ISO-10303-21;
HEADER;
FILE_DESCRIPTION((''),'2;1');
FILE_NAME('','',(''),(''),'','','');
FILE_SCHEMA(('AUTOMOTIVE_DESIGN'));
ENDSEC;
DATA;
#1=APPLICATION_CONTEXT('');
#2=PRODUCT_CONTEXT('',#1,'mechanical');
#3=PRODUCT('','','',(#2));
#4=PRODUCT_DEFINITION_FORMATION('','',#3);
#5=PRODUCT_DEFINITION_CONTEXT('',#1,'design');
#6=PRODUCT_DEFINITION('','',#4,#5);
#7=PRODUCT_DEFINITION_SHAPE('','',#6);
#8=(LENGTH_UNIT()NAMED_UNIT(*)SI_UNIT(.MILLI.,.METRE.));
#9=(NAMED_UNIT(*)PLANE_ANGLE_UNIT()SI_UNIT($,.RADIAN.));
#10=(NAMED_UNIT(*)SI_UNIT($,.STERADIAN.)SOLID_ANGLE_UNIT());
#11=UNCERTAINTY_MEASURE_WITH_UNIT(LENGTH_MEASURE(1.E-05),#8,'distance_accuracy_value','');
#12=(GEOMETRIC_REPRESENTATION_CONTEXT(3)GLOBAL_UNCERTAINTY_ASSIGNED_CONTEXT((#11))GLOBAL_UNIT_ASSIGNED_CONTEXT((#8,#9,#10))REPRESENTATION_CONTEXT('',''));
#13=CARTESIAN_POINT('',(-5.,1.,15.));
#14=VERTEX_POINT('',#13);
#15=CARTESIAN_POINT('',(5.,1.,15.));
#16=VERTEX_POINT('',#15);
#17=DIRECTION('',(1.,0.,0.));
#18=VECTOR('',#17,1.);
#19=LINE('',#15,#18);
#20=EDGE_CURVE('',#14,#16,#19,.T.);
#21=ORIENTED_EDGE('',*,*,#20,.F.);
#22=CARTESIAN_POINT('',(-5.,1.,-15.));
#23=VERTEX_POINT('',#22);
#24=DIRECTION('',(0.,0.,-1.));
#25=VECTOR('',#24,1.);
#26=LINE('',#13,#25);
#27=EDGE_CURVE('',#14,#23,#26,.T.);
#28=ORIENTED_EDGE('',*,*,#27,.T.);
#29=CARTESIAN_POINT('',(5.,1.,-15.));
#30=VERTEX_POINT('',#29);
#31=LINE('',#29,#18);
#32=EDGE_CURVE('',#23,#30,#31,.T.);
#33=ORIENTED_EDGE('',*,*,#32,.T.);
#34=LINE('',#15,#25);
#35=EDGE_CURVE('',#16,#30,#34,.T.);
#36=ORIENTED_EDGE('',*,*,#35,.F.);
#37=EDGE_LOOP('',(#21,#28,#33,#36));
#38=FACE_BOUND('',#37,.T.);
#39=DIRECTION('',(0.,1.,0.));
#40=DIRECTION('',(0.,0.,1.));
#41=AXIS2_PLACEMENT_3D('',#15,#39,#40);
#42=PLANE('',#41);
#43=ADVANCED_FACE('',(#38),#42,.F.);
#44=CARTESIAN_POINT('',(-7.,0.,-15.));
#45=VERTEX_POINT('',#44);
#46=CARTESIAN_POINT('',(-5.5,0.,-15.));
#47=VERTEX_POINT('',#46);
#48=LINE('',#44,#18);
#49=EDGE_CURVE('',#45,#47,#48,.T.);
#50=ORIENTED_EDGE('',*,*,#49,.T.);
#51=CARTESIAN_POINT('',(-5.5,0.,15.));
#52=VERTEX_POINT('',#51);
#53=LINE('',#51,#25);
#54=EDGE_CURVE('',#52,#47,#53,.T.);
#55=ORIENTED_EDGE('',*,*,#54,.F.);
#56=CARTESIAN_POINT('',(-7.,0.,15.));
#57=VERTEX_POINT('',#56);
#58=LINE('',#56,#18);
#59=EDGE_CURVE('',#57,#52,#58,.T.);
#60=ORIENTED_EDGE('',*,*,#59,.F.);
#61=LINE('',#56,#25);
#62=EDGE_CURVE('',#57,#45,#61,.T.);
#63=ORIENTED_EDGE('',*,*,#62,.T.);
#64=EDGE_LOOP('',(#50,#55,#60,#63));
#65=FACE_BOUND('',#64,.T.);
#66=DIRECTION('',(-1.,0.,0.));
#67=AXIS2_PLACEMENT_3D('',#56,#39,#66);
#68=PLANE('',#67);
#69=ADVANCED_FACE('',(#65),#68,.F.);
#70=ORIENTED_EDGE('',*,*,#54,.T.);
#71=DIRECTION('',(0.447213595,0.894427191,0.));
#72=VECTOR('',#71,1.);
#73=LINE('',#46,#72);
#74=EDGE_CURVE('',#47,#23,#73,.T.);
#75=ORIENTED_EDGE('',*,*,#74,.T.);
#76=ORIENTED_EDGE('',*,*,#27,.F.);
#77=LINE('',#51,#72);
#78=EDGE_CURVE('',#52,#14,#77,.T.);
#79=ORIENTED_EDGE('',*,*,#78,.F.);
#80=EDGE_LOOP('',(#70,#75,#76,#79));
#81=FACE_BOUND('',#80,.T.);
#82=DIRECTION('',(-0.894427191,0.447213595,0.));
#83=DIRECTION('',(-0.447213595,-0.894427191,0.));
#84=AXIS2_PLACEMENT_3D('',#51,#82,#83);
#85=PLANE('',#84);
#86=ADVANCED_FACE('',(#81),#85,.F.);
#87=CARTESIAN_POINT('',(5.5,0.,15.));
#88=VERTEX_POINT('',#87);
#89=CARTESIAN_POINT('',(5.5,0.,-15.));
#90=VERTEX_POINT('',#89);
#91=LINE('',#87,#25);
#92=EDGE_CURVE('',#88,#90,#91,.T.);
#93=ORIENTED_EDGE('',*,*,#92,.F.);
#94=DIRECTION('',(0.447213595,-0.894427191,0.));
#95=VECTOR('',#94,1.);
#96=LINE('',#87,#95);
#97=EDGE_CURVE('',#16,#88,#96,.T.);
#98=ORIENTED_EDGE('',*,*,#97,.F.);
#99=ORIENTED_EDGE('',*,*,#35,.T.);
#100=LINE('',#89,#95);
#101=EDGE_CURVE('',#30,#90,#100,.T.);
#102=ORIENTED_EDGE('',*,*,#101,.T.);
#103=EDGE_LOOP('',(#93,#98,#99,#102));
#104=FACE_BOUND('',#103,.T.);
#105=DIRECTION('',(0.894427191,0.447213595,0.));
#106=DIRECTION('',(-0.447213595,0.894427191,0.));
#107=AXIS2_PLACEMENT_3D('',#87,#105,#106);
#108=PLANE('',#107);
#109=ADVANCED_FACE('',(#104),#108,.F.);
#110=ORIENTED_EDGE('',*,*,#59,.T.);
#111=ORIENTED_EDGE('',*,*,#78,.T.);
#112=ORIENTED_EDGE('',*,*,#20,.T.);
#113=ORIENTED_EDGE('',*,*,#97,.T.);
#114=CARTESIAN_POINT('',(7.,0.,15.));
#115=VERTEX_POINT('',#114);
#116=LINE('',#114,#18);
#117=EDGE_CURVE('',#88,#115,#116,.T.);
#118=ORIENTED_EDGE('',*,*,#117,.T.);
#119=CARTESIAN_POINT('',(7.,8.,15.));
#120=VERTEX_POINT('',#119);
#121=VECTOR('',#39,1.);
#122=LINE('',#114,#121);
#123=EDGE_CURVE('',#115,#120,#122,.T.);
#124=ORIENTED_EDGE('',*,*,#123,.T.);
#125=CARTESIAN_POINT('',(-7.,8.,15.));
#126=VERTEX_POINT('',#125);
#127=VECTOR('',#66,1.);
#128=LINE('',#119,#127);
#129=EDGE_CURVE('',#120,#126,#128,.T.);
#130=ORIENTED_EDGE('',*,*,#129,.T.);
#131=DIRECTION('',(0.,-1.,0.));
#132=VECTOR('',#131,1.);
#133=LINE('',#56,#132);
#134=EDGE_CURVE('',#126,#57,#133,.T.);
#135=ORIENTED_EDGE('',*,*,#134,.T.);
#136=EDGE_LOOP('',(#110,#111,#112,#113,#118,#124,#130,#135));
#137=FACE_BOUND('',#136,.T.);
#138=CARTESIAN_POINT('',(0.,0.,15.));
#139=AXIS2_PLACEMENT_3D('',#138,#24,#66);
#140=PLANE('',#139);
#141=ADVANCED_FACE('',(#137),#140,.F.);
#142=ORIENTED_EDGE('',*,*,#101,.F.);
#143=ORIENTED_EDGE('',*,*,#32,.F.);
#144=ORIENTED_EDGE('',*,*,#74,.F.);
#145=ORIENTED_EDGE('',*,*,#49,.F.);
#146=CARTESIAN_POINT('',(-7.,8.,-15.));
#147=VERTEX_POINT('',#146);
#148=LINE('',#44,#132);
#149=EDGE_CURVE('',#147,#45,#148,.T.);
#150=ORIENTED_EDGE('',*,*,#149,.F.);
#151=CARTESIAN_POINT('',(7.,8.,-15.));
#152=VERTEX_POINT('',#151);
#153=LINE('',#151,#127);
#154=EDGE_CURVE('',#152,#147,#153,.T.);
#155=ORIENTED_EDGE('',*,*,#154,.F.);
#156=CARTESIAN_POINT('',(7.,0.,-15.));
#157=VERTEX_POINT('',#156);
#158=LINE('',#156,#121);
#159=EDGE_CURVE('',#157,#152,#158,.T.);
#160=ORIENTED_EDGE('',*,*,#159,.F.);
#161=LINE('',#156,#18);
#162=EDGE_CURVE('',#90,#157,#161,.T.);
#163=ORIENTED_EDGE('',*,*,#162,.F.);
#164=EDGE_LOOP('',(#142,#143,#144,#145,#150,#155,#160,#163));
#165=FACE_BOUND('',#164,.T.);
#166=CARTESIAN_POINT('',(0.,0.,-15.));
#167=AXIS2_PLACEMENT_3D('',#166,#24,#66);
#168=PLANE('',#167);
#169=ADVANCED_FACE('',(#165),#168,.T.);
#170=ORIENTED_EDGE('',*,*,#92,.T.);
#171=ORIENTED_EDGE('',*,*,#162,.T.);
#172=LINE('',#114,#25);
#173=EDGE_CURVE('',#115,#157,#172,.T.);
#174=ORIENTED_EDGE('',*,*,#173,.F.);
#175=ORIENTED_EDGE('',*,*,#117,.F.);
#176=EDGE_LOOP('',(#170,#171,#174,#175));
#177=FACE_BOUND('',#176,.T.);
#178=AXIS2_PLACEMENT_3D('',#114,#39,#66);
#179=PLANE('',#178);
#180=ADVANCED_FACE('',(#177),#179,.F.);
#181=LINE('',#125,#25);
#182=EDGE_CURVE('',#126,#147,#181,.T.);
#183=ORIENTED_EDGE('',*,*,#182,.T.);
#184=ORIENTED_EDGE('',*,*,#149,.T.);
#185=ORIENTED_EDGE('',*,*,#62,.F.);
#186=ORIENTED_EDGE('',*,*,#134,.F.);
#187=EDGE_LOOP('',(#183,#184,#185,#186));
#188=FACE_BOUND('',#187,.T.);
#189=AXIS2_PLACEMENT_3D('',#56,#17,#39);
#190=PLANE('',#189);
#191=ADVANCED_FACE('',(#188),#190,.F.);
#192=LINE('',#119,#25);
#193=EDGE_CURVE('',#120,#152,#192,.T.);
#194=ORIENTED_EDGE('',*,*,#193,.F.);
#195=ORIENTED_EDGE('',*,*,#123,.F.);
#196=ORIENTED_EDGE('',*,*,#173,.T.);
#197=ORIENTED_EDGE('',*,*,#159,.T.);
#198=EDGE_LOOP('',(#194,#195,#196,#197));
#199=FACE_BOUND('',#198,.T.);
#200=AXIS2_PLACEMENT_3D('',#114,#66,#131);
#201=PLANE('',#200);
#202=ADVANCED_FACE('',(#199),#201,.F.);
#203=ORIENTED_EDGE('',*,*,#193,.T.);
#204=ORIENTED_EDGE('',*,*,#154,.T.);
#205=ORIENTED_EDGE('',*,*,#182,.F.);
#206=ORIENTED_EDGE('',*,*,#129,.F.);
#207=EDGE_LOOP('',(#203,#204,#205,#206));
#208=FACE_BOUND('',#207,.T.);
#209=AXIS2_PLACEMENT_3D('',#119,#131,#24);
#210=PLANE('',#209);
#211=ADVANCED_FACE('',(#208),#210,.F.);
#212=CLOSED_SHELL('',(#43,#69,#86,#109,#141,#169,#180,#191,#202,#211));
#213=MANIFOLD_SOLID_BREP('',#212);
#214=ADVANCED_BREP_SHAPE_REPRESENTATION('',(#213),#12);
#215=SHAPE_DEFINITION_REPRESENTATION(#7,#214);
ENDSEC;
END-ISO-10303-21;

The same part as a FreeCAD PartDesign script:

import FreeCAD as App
import Part
import Sketcher
from FreeCAD import Vector
Q = App.Units.Quantity


def add_polygon(sketch, points):
    """Adds a closed chain of lines whose ends are joined by coincident constraints."""
    first, n = sketch.GeometryCount, len(points)
    for a, b in zip(points, points[1:] + points[:1]):
        sketch.addGeometry(Part.LineSegment(App.Vector(*a, 0), App.Vector(*b, 0)), False)
    for i in range(n):
        sketch.addConstraint(Sketcher.Constraint("Coincident", first + i, 2, first + (i + 1) % n, 1))

doc = App.newDocument("Part")
params = doc.addObject("Spreadsheet::Sheet", "Params")
for row, (alias, value) in enumerate([
    ("sketch1_width", "14 mm"),
    ("sketch1_width2", "10 mm"),
    ("sketch1_height", "8 mm"),
    ("sketch1_width3", "1.5 mm"),
    ("pad1_length", "30 mm"),
], start=1):
    params.set(f"A{row}", alias)
    params.set(f"B{row}", "=" + value)
    params.setAlias(f"B{row}", alias)

body = doc.addObject("PartDesign::Body", "Body")

# Sketch on XY plane
sketch1 = doc.addObject("Sketcher::SketchObject", "Sketch")
body.addObject(sketch1)
sketch1.AttachmentSupport = (doc.XY_Plane, [""])
sketch1.MapMode = "FlatFace"
add_polygon(sketch1, [(7, 0), (7, 8), (-7, 8), (-7, 0), (-5.5, 0), (-5, 1), (5, 1), (5.5, 0)])  # lines 0-7
sketch1.addConstraint([
    Sketcher.Constraint("Vertical", 0),
    Sketcher.Constraint("Horizontal", 1),
    Sketcher.Constraint("Vertical", 2),
    Sketcher.Constraint("Horizontal", 3),
    Sketcher.Constraint("Horizontal", 5),
    Sketcher.Constraint("Horizontal", 7),
    Sketcher.Constraint("Symmetric", 3, 2, 6, 2, -1, 1),
    Sketcher.Constraint("Symmetric", 2, 2, 7, 2, -2),
    Sketcher.Constraint("Equal", 4, 6),
    Sketcher.Constraint("DistanceX", 1, 2, 1, 1, Q("14 mm")),
    Sketcher.Constraint("DistanceX", 5, 1, 5, 2, Q("10 mm")),
    Sketcher.Constraint("DistanceY", 0, 1, 0, 2, Q("8 mm")),
    Sketcher.Constraint("DistanceX", 3, 1, 3, 2, Q("1.5 mm")),
    Sketcher.Constraint("DistanceY", -1, 1, 4, 2, Q("1 mm")),
])
sketch1.setExpression("Constraints[17]", "Params.sketch1_width")
sketch1.setExpression("Constraints[18]", "Params.sketch1_width2")
sketch1.setExpression("Constraints[19]", "Params.sketch1_height")
sketch1.setExpression("Constraints[20]", "Params.sketch1_width3")
pad1 = doc.addObject("PartDesign::Pad", "Pad")
body.addObject(pad1)
pad1.Profile = sketch1
pad1.setExpression("Length", "Params.pad1_length")
pad1.Midplane = True

doc.recompute()
